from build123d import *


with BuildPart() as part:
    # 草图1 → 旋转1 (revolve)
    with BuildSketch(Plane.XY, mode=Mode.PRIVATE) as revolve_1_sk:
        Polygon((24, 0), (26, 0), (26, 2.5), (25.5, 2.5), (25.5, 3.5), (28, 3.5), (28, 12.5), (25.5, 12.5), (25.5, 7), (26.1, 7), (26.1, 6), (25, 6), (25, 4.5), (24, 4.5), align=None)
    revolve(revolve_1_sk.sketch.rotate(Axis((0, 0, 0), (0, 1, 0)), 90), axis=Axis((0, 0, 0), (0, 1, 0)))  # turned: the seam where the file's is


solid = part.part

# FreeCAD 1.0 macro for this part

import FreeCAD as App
import Part
import Sketcher

V = App.Vector


def add_polygon(sketch, points):
    """Adds a closed chain of lines whose ends are joined by coincident constraints."""
    first, n = sketch.GeometryCount, len(points)
    for a, b in zip(points, points[1:] + points[:1]):
        sketch.addGeometry(Part.LineSegment(App.Vector(*a, 0), App.Vector(*b, 0)), False)
    for i in range(n):
        sketch.addConstraint(Sketcher.Constraint("Coincident", first + i, 2, first + (i + 1) % n, 1))

doc = App.newDocument("Part")
params = doc.addObject("Spreadsheet::Sheet", "Params")
for row, (alias, value) in enumerate([
    ("sketch1_width", "2 mm"),
    ("sketch1_width2", "1 mm"),
    ("sketch1_height", "9 mm"),
    ("sketch1_width3", "0.5 mm"),
    ("sketch1_width4", "2.5 mm"),
    ("revolution_angle", "360 deg"),
], start=1):
    params.set(f"A{row}", alias)
    params.set(f"B{row}", "=" + value)
    params.setAlias(f"B{row}", alias)

body = doc.addObject("PartDesign::Body", "Body")

# Sketch on XY plane
sketch1 = body.newObject("Sketcher::SketchObject", "Sketch")
sketch1.AttachmentSupport = (doc.getObject("XY_Plane"), [""])
sketch1.MapMode = "FlatFace"
add_polygon(sketch1, [(24, 0), (26, 0), (26, 2.5), (25.5, 2.5), (25.5, 3.5), (28, 3.5), (28, 12.5), (25.5, 12.5), (25.5, 7), (26.1, 7), (26.1, 6), (25, 6), (25, 4.5), (24, 4.5)])  # lines 0-13
sketch1.addConstraint([
    Sketcher.Constraint("Horizontal", 0),
    Sketcher.Constraint("Vertical", 1),
    Sketcher.Constraint("Horizontal", 2),
    Sketcher.Constraint("Vertical", 3),
    Sketcher.Constraint("Horizontal", 4),
    Sketcher.Constraint("Vertical", 5),
    Sketcher.Constraint("Horizontal", 6),
    Sketcher.Constraint("Vertical", 7),
    Sketcher.Constraint("Horizontal", 8),
    Sketcher.Constraint("Vertical", 9),
    Sketcher.Constraint("Horizontal", 10),
    Sketcher.Constraint("Vertical", 11),
    Sketcher.Constraint("Horizontal", 12),
    Sketcher.Constraint("Vertical", 13),
    Sketcher.Constraint("PointOnObject", 0, 2, -1),
    Sketcher.Constraint("Vertical", 3, 2, 6, 2),
    Sketcher.Constraint("Equal", 6, 1),
    Sketcher.Constraint("Equal", 12, 3),
    Sketcher.Constraint("Equal", 3, 9),
    Sketcher.Constraint("DistanceX", 0, 1, 0, 2, 2.0),
    Sketcher.Constraint("DistanceX", 12, 2, 12, 1, 1.0),
    Sketcher.Constraint("DistanceY", 5, 1, 5, 2, 9.0),
    Sketcher.Constraint("DistanceX", 2, 2, 2, 1, 0.5),
    Sketcher.Constraint("DistanceX", 4, 1, 4, 2, 2.5),
    Sketcher.Constraint("DistanceX", 8, 1, 8, 2, 0.6),
    Sketcher.Constraint("DistanceY", 7, 2, 7, 1, 5.5),
    Sketcher.Constraint("DistanceY", 11, 2, 11, 1, 1.5),
    Sketcher.Constraint("DistanceX", -1, 1, 0, 2, 26.0),
])
sketch1.setExpression("Constraints[33]", "Params.sketch1_width")
sketch1.setExpression("Constraints[34]", "Params.sketch1_width2")
sketch1.setExpression("Constraints[35]", "Params.sketch1_height")
sketch1.setExpression("Constraints[36]", "Params.sketch1_width3")
sketch1.setExpression("Constraints[37]", "Params.sketch1_width4")
revolution = body.newObject("PartDesign::Revolution", "Revolution")
revolution.Profile = sketch1
revolution.ReferenceAxis = (sketch1, ["V_Axis"])
revolution.setExpression("Angle", "Params.revolution_angle")

doc.recompute()
